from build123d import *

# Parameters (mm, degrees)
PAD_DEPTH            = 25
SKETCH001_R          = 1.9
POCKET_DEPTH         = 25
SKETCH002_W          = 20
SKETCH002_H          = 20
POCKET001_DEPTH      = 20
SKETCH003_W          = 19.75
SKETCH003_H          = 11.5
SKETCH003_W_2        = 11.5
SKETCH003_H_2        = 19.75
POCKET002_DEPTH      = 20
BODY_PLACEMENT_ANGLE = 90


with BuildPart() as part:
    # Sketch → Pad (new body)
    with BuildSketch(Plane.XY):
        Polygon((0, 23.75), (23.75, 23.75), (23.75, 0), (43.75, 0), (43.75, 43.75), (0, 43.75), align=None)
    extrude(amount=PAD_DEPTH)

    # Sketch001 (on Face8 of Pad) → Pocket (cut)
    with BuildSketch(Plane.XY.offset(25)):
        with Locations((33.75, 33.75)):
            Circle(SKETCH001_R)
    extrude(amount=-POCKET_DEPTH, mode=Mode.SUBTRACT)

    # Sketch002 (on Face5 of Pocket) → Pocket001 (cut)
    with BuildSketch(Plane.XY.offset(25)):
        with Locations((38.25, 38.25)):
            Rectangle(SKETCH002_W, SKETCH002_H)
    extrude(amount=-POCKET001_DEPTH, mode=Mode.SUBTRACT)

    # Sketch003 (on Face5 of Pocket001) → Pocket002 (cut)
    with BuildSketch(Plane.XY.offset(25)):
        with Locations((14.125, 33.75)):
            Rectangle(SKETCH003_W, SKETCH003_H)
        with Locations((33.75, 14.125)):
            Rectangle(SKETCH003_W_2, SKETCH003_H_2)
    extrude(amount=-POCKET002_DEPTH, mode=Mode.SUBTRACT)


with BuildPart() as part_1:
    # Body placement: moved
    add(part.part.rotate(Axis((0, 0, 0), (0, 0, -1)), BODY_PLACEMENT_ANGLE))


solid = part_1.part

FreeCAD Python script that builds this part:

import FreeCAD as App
import Part
import Sketcher
from FreeCAD import Vector
Q = App.Units.Quantity


def add_polygon(sketch, points):
    """Adds a closed chain of lines whose ends are joined by coincident constraints."""
    first, n = sketch.GeometryCount, len(points)
    for a, b in zip(points, points[1:] + points[:1]):
        sketch.addGeometry(Part.LineSegment(App.Vector(*a, 0), App.Vector(*b, 0)), False)
    for i in range(n):
        sketch.addConstraint(Sketcher.Constraint("Coincident", first + i, 2, first + (i + 1) % n, 1))

doc = App.newDocument("Part")
params = doc.addObject("Spreadsheet::Sheet", "Params")
for row, (alias, value) in enumerate([
    ("sketch1_width", "20 mm"),
    ("sketch1_width2", "23.75 mm"),
    ("pad1_length", "25 mm"),
    ("sketch2_diameter", "3.8 mm"),
    ("pocket1_length", "25 mm"),
    ("sketch3_width", "20 mm"),
    ("pocket2_length", "20 mm"),
    ("sketch4_width", "11.5 mm"),
    ("sketch4_width2", "19.75 mm"),
    ("pocket3_length", "20 mm"),
], start=1):
    params.set(f"A{row}", alias)
    params.set(f"B{row}", "=" + value)
    params.setAlias(f"B{row}", alias)

body = doc.addObject("PartDesign::Body", "Body")

sketch1 = body.newObject("Sketcher::SketchObject", "Sketch")
sketch1.AttachmentSupport = (doc.getObject("XY_Plane"), [""])
sketch1.MapMode = "FlatFace"
add_polygon(sketch1, [(0, 23.75), (23.75, 23.75), (23.75, 0), (43.75, 0), (43.75, 43.75), (0, 43.75)])
sketch1.addConstraint([
    Sketcher.Constraint("Horizontal", 0),
    Sketcher.Constraint("Vertical", 1),
    Sketcher.Constraint("Horizontal", 2),
    Sketcher.Constraint("Vertical", 3),
    Sketcher.Constraint("Horizontal", 4),
    Sketcher.Constraint("Vertical", 5),
    Sketcher.Constraint("PointOnObject", 1, 2, -1),
    Sketcher.Constraint("PointOnObject", 4, 2, -2),
    Sketcher.Constraint("Equal", 0, 1),
    Sketcher.Constraint("Equal", 4, 3),
    Sketcher.Constraint("DistanceX", 2, 1, 2, 2, Q("20 mm")),
    Sketcher.Constraint("DistanceX", 0, 1, 0, 2, Q("23.75 mm")),
])
sketch1.setExpression("Constraints[16]", "Params.sketch1_width")
sketch1.setExpression("Constraints[17]", "Params.sketch1_width2")
pad1 = body.newObject("PartDesign::Pad", "Pad")
pad1.Profile = sketch1
pad1.setExpression("Length", "Params.pad1_length")

sketch2 = body.newObject("Sketcher::SketchObject", "Sketch001")
sketch2.AttachmentSupport = (doc.getObject("XY_Plane"), [""])
sketch2.MapMode = "FlatFace"
sketch2.AttachmentOffset = App.Placement(Vector(0, 0, 25), App.Rotation())
sketch2.addGeometry(Part.Circle(Vector(33.75, 33.75, 0), Vector(0, 0, 1), 1.9), False)
sketch2.addConstraint([
    Sketcher.Constraint("Diameter", 0, Q("3.8 mm")),
    Sketcher.Constraint("DistanceX", -1, 1, 0, 3, Q("33.75 mm")),
    Sketcher.Constraint("DistanceY", -1, 1, 0, 3, Q("33.75 mm")),
])
sketch2.setExpression("Constraints[0]", "Params.sketch2_diameter")
pocket1 = body.newObject("PartDesign::Pocket", "Pocket")
pocket1.Profile = sketch2
pocket1.setExpression("Length", "Params.pocket1_length")

sketch3 = body.newObject("Sketcher::SketchObject", "Sketch002")
sketch3.AttachmentSupport = (doc.getObject("XY_Plane"), [""])
sketch3.MapMode = "FlatFace"
sketch3.AttachmentOffset = App.Placement(Vector(0, 0, 25), App.Rotation())
add_polygon(sketch3, [(28.25, 48.25), (28.25, 28.25), (48.25, 28.25), (48.25, 48.25)])
sketch3.addConstraint([
    Sketcher.Constraint("Vertical", 0),
    Sketcher.Constraint("Horizontal", 1),
    Sketcher.Constraint("Vertical", 2),
    Sketcher.Constraint("Horizontal", 3),
    Sketcher.Constraint("Equal", 3, 0),
    Sketcher.Constraint("DistanceX", 1, 1, 1, 2, Q("20 mm")),
    Sketcher.Constraint("DistanceX", -1, 1, 0, 2, Q("28.25 mm")),
    Sketcher.Constraint("DistanceY", -1, 1, 0, 2, Q("28.25 mm")),
])
sketch3.setExpression("Constraints[9]", "Params.sketch3_width")
pocket2 = body.newObject("PartDesign::Pocket", "Pocket001")
pocket2.Profile = sketch3
pocket2.setExpression("Length", "Params.pocket2_length")

sketch4 = body.newObject("Sketcher::SketchObject", "Sketch003")
sketch4.AttachmentSupport = (doc.getObject("XY_Plane"), [""])
sketch4.MapMode = "FlatFace"
sketch4.AttachmentOffset = App.Placement(Vector(0, 0, 25), App.Rotation())
add_polygon(sketch4, [(4.25, 39.5), (4.25, 28), (24, 28), (24, 39.5)])
add_polygon(sketch4, [(28, 24), (28, 4.25), (39.5, 4.25), (39.5, 24)])
sketch4.addConstraint([
    Sketcher.Constraint("Vertical", 0),
    Sketcher.Constraint("Horizontal", 1),
    Sketcher.Constraint("Vertical", 2),
    Sketcher.Constraint("Horizontal", 3),
    Sketcher.Constraint("Vertical", 4),
    Sketcher.Constraint("Horizontal", 5),
    Sketcher.Constraint("Vertical", 6),
    Sketcher.Constraint("Horizontal", 7),
    Sketcher.Constraint("Equal", 7, 0),
    Sketcher.Constraint("Equal", 3, 4),
    Sketcher.Constraint("DistanceX", 5, 1, 5, 2, Q("11.5 mm")),
    Sketcher.Constraint("DistanceY", -1, 1, 0, 2, Q("28 mm")),
    Sketcher.Constraint("DistanceX", -1, 1, 1, 2, Q("24 mm")),
    Sketcher.Constraint("DistanceX", -1, 1, 4, 2, Q("28 mm")),
    Sketcher.Constraint("DistanceY", -1, 1, 6, 2, Q("24 mm")),
    Sketcher.Constraint("DistanceX", 1, 1, 1, 2, Q("19.75 mm")),
])
sketch4.setExpression("Constraints[18]", "Params.sketch4_width")
sketch4.setExpression("Constraints[23]", "Params.sketch4_width2")
pocket3 = body.newObject("PartDesign::Pocket", "Pocket002")
pocket3.Profile = sketch4
pocket3.setExpression("Length", "Params.pocket3_length")
body2 = doc.addObject("PartDesign::Body", "Body001")
doc.recompute()

body.Placement = App.Placement(Vector(0, 0, 0), App.Rotation(Vector(0, 0, -1), 90))
boolean = body2.newObject("PartDesign::Boolean", "Boolean")
boolean.Type = "Fuse"
boolean.addObjects([body])

doc.recompute()
